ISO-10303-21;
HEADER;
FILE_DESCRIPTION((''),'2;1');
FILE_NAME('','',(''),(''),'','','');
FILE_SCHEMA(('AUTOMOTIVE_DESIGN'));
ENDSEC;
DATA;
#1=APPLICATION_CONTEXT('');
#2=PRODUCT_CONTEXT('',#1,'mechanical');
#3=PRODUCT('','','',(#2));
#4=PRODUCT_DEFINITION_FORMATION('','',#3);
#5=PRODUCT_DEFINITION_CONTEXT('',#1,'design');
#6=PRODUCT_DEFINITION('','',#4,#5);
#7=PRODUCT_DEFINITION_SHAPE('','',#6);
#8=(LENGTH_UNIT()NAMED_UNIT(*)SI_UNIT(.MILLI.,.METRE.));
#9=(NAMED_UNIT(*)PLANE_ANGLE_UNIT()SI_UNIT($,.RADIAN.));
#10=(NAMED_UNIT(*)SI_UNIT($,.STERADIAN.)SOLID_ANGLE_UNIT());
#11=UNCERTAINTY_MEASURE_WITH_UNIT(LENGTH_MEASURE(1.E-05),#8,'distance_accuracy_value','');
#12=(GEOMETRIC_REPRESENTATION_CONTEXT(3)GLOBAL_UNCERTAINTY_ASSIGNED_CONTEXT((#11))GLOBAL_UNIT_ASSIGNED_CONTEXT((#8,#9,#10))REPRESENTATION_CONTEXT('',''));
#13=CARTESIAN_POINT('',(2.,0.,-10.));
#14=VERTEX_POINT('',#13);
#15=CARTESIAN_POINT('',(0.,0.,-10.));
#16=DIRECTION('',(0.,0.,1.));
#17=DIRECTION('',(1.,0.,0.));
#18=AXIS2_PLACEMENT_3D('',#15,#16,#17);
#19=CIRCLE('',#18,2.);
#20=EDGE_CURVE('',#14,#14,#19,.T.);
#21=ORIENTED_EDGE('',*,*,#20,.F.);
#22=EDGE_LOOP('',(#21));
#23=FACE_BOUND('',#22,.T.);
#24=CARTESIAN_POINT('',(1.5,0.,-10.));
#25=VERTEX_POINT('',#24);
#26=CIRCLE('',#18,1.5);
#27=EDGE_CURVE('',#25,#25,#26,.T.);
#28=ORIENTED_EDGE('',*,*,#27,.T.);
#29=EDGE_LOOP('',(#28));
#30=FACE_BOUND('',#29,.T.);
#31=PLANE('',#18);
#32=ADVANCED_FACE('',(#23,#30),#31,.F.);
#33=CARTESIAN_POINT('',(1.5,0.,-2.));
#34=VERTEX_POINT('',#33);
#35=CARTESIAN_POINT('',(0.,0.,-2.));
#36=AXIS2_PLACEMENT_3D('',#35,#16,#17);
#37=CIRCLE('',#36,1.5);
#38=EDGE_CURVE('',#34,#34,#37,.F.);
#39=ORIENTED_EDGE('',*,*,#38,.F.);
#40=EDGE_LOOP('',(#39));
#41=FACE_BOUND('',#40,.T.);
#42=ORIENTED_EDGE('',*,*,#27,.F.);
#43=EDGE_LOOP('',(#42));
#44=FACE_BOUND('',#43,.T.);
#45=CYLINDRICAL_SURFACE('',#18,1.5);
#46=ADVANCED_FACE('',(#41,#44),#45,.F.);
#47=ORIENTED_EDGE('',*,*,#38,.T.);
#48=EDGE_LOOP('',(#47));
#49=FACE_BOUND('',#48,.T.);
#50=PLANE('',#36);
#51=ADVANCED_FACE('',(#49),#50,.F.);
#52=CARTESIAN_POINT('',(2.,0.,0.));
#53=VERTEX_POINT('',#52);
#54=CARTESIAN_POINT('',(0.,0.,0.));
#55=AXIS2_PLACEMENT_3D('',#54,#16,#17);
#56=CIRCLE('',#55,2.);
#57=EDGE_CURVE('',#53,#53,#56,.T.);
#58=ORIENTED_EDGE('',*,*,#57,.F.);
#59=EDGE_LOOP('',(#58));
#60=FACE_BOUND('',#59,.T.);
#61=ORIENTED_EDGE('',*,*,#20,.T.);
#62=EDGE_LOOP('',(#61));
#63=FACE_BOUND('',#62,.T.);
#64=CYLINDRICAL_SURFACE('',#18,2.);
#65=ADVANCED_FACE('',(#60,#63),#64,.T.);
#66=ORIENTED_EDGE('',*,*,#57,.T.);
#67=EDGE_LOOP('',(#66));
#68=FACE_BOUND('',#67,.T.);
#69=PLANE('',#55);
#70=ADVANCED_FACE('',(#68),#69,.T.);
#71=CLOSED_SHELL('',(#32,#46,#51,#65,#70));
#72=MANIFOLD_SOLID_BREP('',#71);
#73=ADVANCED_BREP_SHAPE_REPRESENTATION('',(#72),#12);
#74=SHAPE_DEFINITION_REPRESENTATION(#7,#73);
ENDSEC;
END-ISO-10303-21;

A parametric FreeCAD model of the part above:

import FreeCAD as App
import Part
import Sketcher
Q = App.Units.Quantity

doc = App.newDocument("Part")
body = doc.addObject("PartDesign::Body", "Body")

sketch1 = body.newObject("Sketcher::SketchObject", "Sketch")
sketch1.AttachmentSupport = (doc.getObject("XY_Plane"), [""])
sketch1.MapMode = "FlatFace"
sketch1.addGeometry([
    Part.Circle(App.Vector(0, 0, 0), App.Vector(0, 0, 1), 2),
    Part.Circle(App.Vector(0, 0, 0), App.Vector(0, 0, 1), 1.5),
], False)
sketch1.addConstraint([
    Sketcher.Constraint("Coincident", 0, 3, -1, 1),
    Sketcher.Constraint("Coincident", 1, 3, -1, 1),
    Sketcher.Constraint("Diameter", 0, Q("4 mm")),
    Sketcher.Constraint("Diameter", 1, Q("3 mm")),
])
pad1 = body.newObject("PartDesign::Pad", "Pad")
pad1.Profile = sketch1
pad1.Length = 10
pad1.Reversed = True

sketch2 = body.newObject("Sketcher::SketchObject", "Sketch001")
sketch2.AttachmentSupport = (doc.getObject("XY_Plane"), [""])
sketch2.MapMode = "FlatFace"
sketch2.addGeometry(Part.Circle(App.Vector(0, 0, 0), App.Vector(0, 0, 1), 2), False)
sketch2.addConstraint([
    Sketcher.Constraint("Coincident", 0, 3, -1, 1),
    Sketcher.Constraint("Diameter", 0, Q("4 mm")),
])
pad2 = body.newObject("PartDesign::Pad", "Pad001")
pad2.Profile = sketch2
pad2.Length = 2
pad2.Reversed = True

doc.recompute()
